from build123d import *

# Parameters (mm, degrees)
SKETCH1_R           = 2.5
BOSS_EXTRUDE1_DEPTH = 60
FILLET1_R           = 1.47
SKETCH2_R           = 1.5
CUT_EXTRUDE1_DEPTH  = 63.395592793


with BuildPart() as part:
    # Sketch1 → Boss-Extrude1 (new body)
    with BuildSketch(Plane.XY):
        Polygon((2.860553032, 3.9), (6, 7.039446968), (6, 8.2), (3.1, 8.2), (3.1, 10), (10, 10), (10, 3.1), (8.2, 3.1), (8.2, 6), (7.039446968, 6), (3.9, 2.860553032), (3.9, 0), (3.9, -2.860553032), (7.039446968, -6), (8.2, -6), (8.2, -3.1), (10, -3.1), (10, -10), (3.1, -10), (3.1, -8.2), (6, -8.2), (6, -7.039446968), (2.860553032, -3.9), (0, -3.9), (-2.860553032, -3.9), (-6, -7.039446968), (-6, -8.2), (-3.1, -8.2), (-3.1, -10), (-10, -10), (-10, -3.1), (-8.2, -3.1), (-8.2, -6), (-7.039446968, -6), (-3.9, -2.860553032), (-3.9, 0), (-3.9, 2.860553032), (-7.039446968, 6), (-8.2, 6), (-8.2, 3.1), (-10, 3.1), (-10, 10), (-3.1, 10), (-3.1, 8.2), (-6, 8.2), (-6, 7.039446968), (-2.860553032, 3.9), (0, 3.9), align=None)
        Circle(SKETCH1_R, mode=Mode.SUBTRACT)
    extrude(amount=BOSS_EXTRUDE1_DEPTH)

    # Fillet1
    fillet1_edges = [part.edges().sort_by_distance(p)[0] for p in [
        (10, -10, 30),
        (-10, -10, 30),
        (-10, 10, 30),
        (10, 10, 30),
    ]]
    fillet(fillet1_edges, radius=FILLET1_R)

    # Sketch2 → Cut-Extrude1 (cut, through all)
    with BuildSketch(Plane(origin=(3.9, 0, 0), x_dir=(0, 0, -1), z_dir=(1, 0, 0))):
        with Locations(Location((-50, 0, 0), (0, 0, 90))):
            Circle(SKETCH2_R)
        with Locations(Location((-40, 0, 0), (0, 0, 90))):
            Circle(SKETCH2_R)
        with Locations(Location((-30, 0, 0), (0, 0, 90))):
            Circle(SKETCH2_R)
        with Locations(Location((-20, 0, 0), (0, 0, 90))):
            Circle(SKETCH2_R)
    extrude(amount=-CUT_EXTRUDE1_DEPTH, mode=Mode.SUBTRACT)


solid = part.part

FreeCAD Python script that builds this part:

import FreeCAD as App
import Part
import Sketcher

V = App.Vector


def edges_at(feature, points):
    """Names of the edges that pass closest to the given points."""
    edges = feature.Shape.Edges
    near = lambda p: min(range(len(edges)), key=lambda i: edges[i].distToShape(Part.Vertex(*p))[0])
    return sorted({f"Edge{near(p) + 1}" for p in points})

doc = App.newDocument("Part")
params = doc.addObject("Spreadsheet::Sheet", "Params")
for row, (alias, value) in enumerate([
    ("sketch1_diameter", "5 mm"),
    ("sketch1_width", "2.9 mm"),
    ("sketch1_width2", "6.9 mm"),
    ("sketch1_width3", "1.8 mm"),
    ("pad1_length", "60 mm"),
    ("fillet_radius", "1.47 mm"),
    ("sketch2_diameter", "3 mm"),
], start=1):
    params.set(f"A{row}", alias)
    params.set(f"B{row}", "=" + value)
    params.setAlias(f"B{row}", alias)

body = doc.addObject("PartDesign::Body", "Body")

# Sketch on XY plane
sketch1 = body.newObject("Sketcher::SketchObject", "Sketch")
sketch1.AttachmentSupport = (doc.getObject("XY_Plane"), [""])
sketch1.MapMode = "FlatFace"
sketch1.addGeometry([
    Part.LineSegment(V(6, 7.039447, 0), V(2.860553, 3.9, 0)),  # 0
    Part.LineSegment(V(2.860553, 3.9, 0), V(-2.860553, 3.9, 0)),  # 1
    Part.LineSegment(V(-2.860553, 3.9, 0), V(-6, 7.039447, 0)),  # 2
    Part.LineSegment(V(-6, 7.039447, 0), V(-6, 8.2, 0)),  # 3
    Part.LineSegment(V(-6, 8.2, 0), V(-3.1, 8.2, 0)),  # 4
    Part.LineSegment(V(-3.1, 8.2, 0), V(-3.1, 10, 0)),  # 5
    Part.LineSegment(V(-3.1, 10, 0), V(-10, 10, 0)),  # 6
    Part.LineSegment(V(-10, 10, 0), V(-10, 3.1, 0)),  # 7
    Part.LineSegment(V(-10, 3.1, 0), V(-8.2, 3.1, 0)),  # 8
    Part.LineSegment(V(-8.2, 3.1, 0), V(-8.2, 6, 0)),  # 9
    Part.LineSegment(V(-8.2, 6, 0), V(-7.039447, 6, 0)),  # 10
    Part.LineSegment(V(-7.039447, 6, 0), V(-3.9, 2.860553, 0)),  # 11
    Part.LineSegment(V(-3.9, 2.860553, 0), V(-3.9, -2.860553, 0)),  # 12
    Part.LineSegment(V(-3.9, -2.860553, 0), V(-7.039447, -6, 0)),  # 13
    Part.LineSegment(V(-7.039447, -6, 0), V(-8.2, -6, 0)),  # 14
    Part.LineSegment(V(-8.2, -6, 0), V(-8.2, -3.1, 0)),  # 15
    Part.LineSegment(V(-8.2, -3.1, 0), V(-10, -3.1, 0)),  # 16
    Part.LineSegment(V(-10, -3.1, 0), V(-10, -10, 0)),  # 17
    Part.LineSegment(V(-10, -10, 0), V(-3.1, -10, 0)),  # 18
    Part.LineSegment(V(-3.1, -10, 0), V(-3.1, -8.2, 0)),  # 19
    Part.LineSegment(V(-3.1, -8.2, 0), V(-6, -8.2, 0)),  # 20
    Part.LineSegment(V(-6, -8.2, 0), V(-6, -7.039447, 0)),  # 21
    Part.LineSegment(V(-6, -7.039447, 0), V(-2.860553, -3.9, 0)),  # 22
    Part.LineSegment(V(-2.860553, -3.9, 0), V(2.860553, -3.9, 0)),  # 23
    Part.LineSegment(V(2.860553, -3.9, 0), V(6, -7.039447, 0)),  # 24
    Part.LineSegment(V(6, -7.039447, 0), V(6, -8.2, 0)),  # 25
    Part.LineSegment(V(6, -8.2, 0), V(3.1, -8.2, 0)),  # 26
    Part.LineSegment(V(3.1, -8.2, 0), V(3.1, -10, 0)),  # 27
    Part.LineSegment(V(3.1, -10, 0), V(10, -10, 0)),  # 28
    Part.LineSegment(V(10, -10, 0), V(10, -3.1, 0)),  # 29
    Part.LineSegment(V(10, -3.1, 0), V(8.2, -3.1, 0)),  # 30
    Part.LineSegment(V(8.2, -3.1, 0), V(8.2, -6, 0)),  # 31
    Part.LineSegment(V(8.2, -6, 0), V(7.039447, -6, 0)),  # 32
    Part.LineSegment(V(7.039447, -6, 0), V(3.9, -2.860553, 0)),  # 33
    Part.LineSegment(V(3.9, -2.860553, 0), V(3.9, 2.860553, 0)),  # 34
    Part.LineSegment(V(3.9, 2.860553, 0), V(7.039447, 6, 0)),  # 35
    Part.LineSegment(V(7.039447, 6, 0), V(8.2, 6, 0)),  # 36
    Part.LineSegment(V(8.2, 6, 0), V(8.2, 3.1, 0)),  # 37
    Part.LineSegment(V(8.2, 3.1, 0), V(10, 3.1, 0)),  # 38
    Part.LineSegment(V(10, 3.1, 0), V(10, 10, 0)),  # 39
    Part.LineSegment(V(10, 10, 0), V(3.1, 10, 0)),  # 40
    Part.LineSegment(V(3.1, 10, 0), V(3.1, 8.2, 0)),  # 41
    Part.LineSegment(V(3.1, 8.2, 0), V(6, 8.2, 0)),  # 42
    Part.LineSegment(V(6, 8.2, 0), V(6, 7.039447, 0)),  # 43
    Part.Circle(V(0, 0, 0), V(0, 0, 1), 2.5),  # 44
], False)
sketch1.addConstraint([
    Sketcher.Constraint("Coincident", 0, 2, 1, 1),
    Sketcher.Constraint("Coincident", 1, 2, 2, 1),
    Sketcher.Constraint("Coincident", 2, 2, 3, 1),
    Sketcher.Constraint("Coincident", 3, 2, 4, 1),
    Sketcher.Constraint("Coincident", 4, 2, 5, 1),
    Sketcher.Constraint("Coincident", 5, 2, 6, 1),
    Sketcher.Constraint("Coincident", 6, 2, 7, 1),
    Sketcher.Constraint("Coincident", 7, 2, 8, 1),
    Sketcher.Constraint("Coincident", 8, 2, 9, 1),
    Sketcher.Constraint("Coincident", 9, 2, 10, 1),
    Sketcher.Constraint("Coincident", 10, 2, 11, 1),
    Sketcher.Constraint("Coincident", 11, 2, 12, 1),
    Sketcher.Constraint("Coincident", 12, 2, 13, 1),
    Sketcher.Constraint("Coincident", 13, 2, 14, 1),
    Sketcher.Constraint("Coincident", 14, 2, 15, 1),
    Sketcher.Constraint("Coincident", 15, 2, 16, 1),
    Sketcher.Constraint("Coincident", 16, 2, 17, 1),
    Sketcher.Constraint("Coincident", 17, 2, 18, 1),
    Sketcher.Constraint("Coincident", 18, 2, 19, 1),
    Sketcher.Constraint("Coincident", 19, 2, 20, 1),
    Sketcher.Constraint("Coincident", 20, 2, 21, 1),
    Sketcher.Constraint("Coincident", 21, 2, 22, 1),
    Sketcher.Constraint("Coincident", 22, 2, 23, 1),
    Sketcher.Constraint("Coincident", 23, 2, 24, 1),
    Sketcher.Constraint("Coincident", 24, 2, 25, 1),
    Sketcher.Constraint("Coincident", 25, 2, 26, 1),
    Sketcher.Constraint("Coincident", 26, 2, 27, 1),
    Sketcher.Constraint("Coincident", 27, 2, 28, 1),
    Sketcher.Constraint("Coincident", 28, 2, 29, 1),
    Sketcher.Constraint("Coincident", 29, 2, 30, 1),
    Sketcher.Constraint("Coincident", 30, 2, 31, 1),
    Sketcher.Constraint("Coincident", 31, 2, 32, 1),
    Sketcher.Constraint("Coincident", 32, 2, 33, 1),
    Sketcher.Constraint("Coincident", 33, 2, 34, 1),
    Sketcher.Constraint("Coincident", 34, 2, 35, 1),
    Sketcher.Constraint("Coincident", 35, 2, 36, 1),
    Sketcher.Constraint("Coincident", 36, 2, 37, 1),
    Sketcher.Constraint("Coincident", 37, 2, 38, 1),
    Sketcher.Constraint("Coincident", 38, 2, 39, 1),
    Sketcher.Constraint("Coincident", 39, 2, 40, 1),
    Sketcher.Constraint("Coincident", 40, 2, 41, 1),
    Sketcher.Constraint("Coincident", 41, 2, 42, 1),
    Sketcher.Constraint("Coincident", 42, 2, 43, 1),
    Sketcher.Constraint("Coincident", 43, 2, 0, 1),
    Sketcher.Constraint("Horizontal", 1),
    Sketcher.Constraint("Vertical", 3),
    Sketcher.Constraint("Horizontal", 4),
    Sketcher.Constraint("Vertical", 5),
    Sketcher.Constraint("Horizontal", 6),
    Sketcher.Constraint("Vertical", 7),
    Sketcher.Constraint("Horizontal", 8),
    Sketcher.Constraint("Vertical", 9),
    Sketcher.Constraint("Horizontal", 10),
    Sketcher.Constraint("Vertical", 12),
    Sketcher.Constraint("Horizontal", 14),
    Sketcher.Constraint("Vertical", 15),
    Sketcher.Constraint("Horizontal", 16),
    Sketcher.Constraint("Vertical", 17),
    Sketcher.Constraint("Horizontal", 18),
    Sketcher.Constraint("Vertical", 19),
    Sketcher.Constraint("Horizontal", 20),
    Sketcher.Constraint("Vertical", 21),
    Sketcher.Constraint("Horizontal", 23),
    Sketcher.Constraint("Vertical", 25),
    Sketcher.Constraint("Horizontal", 26),
    Sketcher.Constraint("Vertical", 27),
    Sketcher.Constraint("Horizontal", 28),
    Sketcher.Constraint("Vertical", 29),
    Sketcher.Constraint("Horizontal", 30),
    Sketcher.Constraint("Vertical", 31),
    Sketcher.Constraint("Horizontal", 32),
    Sketcher.Constraint("Vertical", 34),
    Sketcher.Constraint("Horizontal", 36),
    Sketcher.Constraint("Vertical", 37),
    Sketcher.Constraint("Horizontal", 38),
    Sketcher.Constraint("Vertical", 39),
    Sketcher.Constraint("Horizontal", 40),
    Sketcher.Constraint("Vertical", 41),
    Sketcher.Constraint("Horizontal", 42),
    Sketcher.Constraint("Vertical", 43),
    Sketcher.Constraint("Coincident", 44, 3, -1, 1),
    Sketcher.Constraint("Symmetric", 0, 2, 22, 2, -1, 1),
    Sketcher.Constraint("Symmetric", 2, 2, 24, 2, -1, 1),
    Sketcher.Constraint("Symmetric", 4, 2, 26, 2, -1, 1),
    Sketcher.Constraint("Symmetric", 6, 2, 28, 2, -1, 1),
    Sketcher.Constraint("Symmetric", 8, 2, 30, 2, -1, 1),
    Sketcher.Constraint("Symmetric", 10, 2, 32, 2, -1, 1),
    Sketcher.Constraint("Symmetric", 11, 2, 33, 2, -1, 1),
    Sketcher.Constraint("Symmetric", 13, 2, 35, 2, -1, 1),
    Sketcher.Constraint("Symmetric", 15, 2, 37, 2, -1, 1),
    Sketcher.Constraint("Symmetric", 17, 2, 39, 2, -1, 1),
    Sketcher.Constraint("Symmetric", 19, 2, 41, 2, -1, 1),
    Sketcher.Constraint("Symmetric", 21, 2, 43, 2, -1, 1),
    Sketcher.Constraint("Symmetric", 21, 2, 24, 2, -2),
    Sketcher.Constraint("Symmetric", 19, 2, 26, 2, -2),
    Sketcher.Constraint("Symmetric", 17, 2, 28, 2, -2),
    Sketcher.Constraint("Symmetric", 15, 2, 30, 2, -2),
    Sketcher.Constraint("Symmetric", 13, 2, 32, 2, -2),
    Sketcher.Constraint("Perpendicular", 0, 2),
    Sketcher.Constraint("Parallel", 2, 11),
    Sketcher.Constraint("Perpendicular", 11, 13),
    Sketcher.Constraint("Perpendicular", 22, 24),
    Sketcher.Constraint("Perpendicular", 33, 35),
    Sketcher.Constraint("Horizontal", 12, 2, 33, 2),
    Sketcher.Constraint("Equal", 36, 3),
    Sketcher.Constraint("Equal", 38, 5),
    Sketcher.Constraint("Equal", 40, 7),
    Sketcher.Constraint("Equal", 42, 9),
    Sketcher.Constraint("Equal", 23, 12),
    Sketcher.Constraint("Equal", 2, 11),
    Sketcher.Constraint("Diameter", 44, 5.0),
    Sketcher.Constraint("DistanceX", 4, 1, 4, 2, 2.9),
    Sketcher.Constraint("DistanceX", 6, 2, 6, 1, 6.9),
    Sketcher.Constraint("DistanceX", 8, 1, 8, 2, 1.8),
    Sketcher.Constraint("DistanceX", 2, 2, -1, 1, 6.0),
    Sketcher.Constraint("DistanceY", -1, 1, 0, 2, 3.9),
    Sketcher.Constraint("Distance", 0, 4.439848),
])
sketch1.setExpression("Constraints[110]", "Params.sketch1_diameter")
sketch1.setExpression("Constraints[111]", "Params.sketch1_width")
sketch1.setExpression("Constraints[112]", "Params.sketch1_width2")
sketch1.setExpression("Constraints[113]", "Params.sketch1_width3")
pad1 = body.newObject("PartDesign::Pad", "Pad")
pad1.Profile = sketch1
pad1.setExpression("Length", "Params.pad1_length")
doc.recompute()

fillet = body.newObject("PartDesign::Fillet", "Fillet")
fillet.Base = (pad1, edges_at(pad1, [
    (10, -10, 30),
    (-10, -10, 30),
    (-10, 10, 30),
    (10, 10, 30),
]))
fillet.setExpression("Radius", "Params.fillet_radius")

# Sketch on YZ plane
sketch2 = body.newObject("Sketcher::SketchObject", "Sketch001")
sketch2.AttachmentSupport = (doc.getObject("YZ_Plane"), [""])
sketch2.MapMode = "FlatFace"
sketch2.AttachmentOffset = App.Placement(V(0, 0, 3.9), App.Rotation())
sketch2.addGeometry([
    Part.Circle(V(0, 50, 0), V(0, 0, 1), 1.5),
    Part.Circle(V(0, 40, 0), V(0, 0, 1), 1.5),
    Part.Circle(V(0, 30, 0), V(0, 0, 1), 1.5),
    Part.Circle(V(0, 20, 0), V(0, 0, 1), 1.5),
], False)
sketch2.addConstraint([
    Sketcher.Constraint("Equal", 0, 1),
    Sketcher.Constraint("Equal", 1, 2),
    Sketcher.Constraint("Equal", 2, 3),
    Sketcher.Constraint("PointOnObject", 0, 3, -2),
    Sketcher.Constraint("PointOnObject", 1, 3, -2),
    Sketcher.Constraint("PointOnObject", 2, 3, -2),
    Sketcher.Constraint("PointOnObject", 3, 3, -2),
    Sketcher.Constraint("Diameter", 0, 3.0),
    Sketcher.Constraint("DistanceY", -1, 1, 0, 3, 50.0),
    Sketcher.Constraint("DistanceY", -1, 1, 1, 3, 40.0),
    Sketcher.Constraint("DistanceY", -1, 1, 2, 3, 30.0),
    Sketcher.Constraint("DistanceY", -1, 1, 3, 3, 20.0),
])
sketch2.setExpression("Constraints[7]", "Params.sketch2_diameter")
pocket1 = body.newObject("PartDesign::Pocket", "Pocket")
pocket1.Profile = sketch2
pocket1.Type = "ThroughAll"

doc.recompute()
